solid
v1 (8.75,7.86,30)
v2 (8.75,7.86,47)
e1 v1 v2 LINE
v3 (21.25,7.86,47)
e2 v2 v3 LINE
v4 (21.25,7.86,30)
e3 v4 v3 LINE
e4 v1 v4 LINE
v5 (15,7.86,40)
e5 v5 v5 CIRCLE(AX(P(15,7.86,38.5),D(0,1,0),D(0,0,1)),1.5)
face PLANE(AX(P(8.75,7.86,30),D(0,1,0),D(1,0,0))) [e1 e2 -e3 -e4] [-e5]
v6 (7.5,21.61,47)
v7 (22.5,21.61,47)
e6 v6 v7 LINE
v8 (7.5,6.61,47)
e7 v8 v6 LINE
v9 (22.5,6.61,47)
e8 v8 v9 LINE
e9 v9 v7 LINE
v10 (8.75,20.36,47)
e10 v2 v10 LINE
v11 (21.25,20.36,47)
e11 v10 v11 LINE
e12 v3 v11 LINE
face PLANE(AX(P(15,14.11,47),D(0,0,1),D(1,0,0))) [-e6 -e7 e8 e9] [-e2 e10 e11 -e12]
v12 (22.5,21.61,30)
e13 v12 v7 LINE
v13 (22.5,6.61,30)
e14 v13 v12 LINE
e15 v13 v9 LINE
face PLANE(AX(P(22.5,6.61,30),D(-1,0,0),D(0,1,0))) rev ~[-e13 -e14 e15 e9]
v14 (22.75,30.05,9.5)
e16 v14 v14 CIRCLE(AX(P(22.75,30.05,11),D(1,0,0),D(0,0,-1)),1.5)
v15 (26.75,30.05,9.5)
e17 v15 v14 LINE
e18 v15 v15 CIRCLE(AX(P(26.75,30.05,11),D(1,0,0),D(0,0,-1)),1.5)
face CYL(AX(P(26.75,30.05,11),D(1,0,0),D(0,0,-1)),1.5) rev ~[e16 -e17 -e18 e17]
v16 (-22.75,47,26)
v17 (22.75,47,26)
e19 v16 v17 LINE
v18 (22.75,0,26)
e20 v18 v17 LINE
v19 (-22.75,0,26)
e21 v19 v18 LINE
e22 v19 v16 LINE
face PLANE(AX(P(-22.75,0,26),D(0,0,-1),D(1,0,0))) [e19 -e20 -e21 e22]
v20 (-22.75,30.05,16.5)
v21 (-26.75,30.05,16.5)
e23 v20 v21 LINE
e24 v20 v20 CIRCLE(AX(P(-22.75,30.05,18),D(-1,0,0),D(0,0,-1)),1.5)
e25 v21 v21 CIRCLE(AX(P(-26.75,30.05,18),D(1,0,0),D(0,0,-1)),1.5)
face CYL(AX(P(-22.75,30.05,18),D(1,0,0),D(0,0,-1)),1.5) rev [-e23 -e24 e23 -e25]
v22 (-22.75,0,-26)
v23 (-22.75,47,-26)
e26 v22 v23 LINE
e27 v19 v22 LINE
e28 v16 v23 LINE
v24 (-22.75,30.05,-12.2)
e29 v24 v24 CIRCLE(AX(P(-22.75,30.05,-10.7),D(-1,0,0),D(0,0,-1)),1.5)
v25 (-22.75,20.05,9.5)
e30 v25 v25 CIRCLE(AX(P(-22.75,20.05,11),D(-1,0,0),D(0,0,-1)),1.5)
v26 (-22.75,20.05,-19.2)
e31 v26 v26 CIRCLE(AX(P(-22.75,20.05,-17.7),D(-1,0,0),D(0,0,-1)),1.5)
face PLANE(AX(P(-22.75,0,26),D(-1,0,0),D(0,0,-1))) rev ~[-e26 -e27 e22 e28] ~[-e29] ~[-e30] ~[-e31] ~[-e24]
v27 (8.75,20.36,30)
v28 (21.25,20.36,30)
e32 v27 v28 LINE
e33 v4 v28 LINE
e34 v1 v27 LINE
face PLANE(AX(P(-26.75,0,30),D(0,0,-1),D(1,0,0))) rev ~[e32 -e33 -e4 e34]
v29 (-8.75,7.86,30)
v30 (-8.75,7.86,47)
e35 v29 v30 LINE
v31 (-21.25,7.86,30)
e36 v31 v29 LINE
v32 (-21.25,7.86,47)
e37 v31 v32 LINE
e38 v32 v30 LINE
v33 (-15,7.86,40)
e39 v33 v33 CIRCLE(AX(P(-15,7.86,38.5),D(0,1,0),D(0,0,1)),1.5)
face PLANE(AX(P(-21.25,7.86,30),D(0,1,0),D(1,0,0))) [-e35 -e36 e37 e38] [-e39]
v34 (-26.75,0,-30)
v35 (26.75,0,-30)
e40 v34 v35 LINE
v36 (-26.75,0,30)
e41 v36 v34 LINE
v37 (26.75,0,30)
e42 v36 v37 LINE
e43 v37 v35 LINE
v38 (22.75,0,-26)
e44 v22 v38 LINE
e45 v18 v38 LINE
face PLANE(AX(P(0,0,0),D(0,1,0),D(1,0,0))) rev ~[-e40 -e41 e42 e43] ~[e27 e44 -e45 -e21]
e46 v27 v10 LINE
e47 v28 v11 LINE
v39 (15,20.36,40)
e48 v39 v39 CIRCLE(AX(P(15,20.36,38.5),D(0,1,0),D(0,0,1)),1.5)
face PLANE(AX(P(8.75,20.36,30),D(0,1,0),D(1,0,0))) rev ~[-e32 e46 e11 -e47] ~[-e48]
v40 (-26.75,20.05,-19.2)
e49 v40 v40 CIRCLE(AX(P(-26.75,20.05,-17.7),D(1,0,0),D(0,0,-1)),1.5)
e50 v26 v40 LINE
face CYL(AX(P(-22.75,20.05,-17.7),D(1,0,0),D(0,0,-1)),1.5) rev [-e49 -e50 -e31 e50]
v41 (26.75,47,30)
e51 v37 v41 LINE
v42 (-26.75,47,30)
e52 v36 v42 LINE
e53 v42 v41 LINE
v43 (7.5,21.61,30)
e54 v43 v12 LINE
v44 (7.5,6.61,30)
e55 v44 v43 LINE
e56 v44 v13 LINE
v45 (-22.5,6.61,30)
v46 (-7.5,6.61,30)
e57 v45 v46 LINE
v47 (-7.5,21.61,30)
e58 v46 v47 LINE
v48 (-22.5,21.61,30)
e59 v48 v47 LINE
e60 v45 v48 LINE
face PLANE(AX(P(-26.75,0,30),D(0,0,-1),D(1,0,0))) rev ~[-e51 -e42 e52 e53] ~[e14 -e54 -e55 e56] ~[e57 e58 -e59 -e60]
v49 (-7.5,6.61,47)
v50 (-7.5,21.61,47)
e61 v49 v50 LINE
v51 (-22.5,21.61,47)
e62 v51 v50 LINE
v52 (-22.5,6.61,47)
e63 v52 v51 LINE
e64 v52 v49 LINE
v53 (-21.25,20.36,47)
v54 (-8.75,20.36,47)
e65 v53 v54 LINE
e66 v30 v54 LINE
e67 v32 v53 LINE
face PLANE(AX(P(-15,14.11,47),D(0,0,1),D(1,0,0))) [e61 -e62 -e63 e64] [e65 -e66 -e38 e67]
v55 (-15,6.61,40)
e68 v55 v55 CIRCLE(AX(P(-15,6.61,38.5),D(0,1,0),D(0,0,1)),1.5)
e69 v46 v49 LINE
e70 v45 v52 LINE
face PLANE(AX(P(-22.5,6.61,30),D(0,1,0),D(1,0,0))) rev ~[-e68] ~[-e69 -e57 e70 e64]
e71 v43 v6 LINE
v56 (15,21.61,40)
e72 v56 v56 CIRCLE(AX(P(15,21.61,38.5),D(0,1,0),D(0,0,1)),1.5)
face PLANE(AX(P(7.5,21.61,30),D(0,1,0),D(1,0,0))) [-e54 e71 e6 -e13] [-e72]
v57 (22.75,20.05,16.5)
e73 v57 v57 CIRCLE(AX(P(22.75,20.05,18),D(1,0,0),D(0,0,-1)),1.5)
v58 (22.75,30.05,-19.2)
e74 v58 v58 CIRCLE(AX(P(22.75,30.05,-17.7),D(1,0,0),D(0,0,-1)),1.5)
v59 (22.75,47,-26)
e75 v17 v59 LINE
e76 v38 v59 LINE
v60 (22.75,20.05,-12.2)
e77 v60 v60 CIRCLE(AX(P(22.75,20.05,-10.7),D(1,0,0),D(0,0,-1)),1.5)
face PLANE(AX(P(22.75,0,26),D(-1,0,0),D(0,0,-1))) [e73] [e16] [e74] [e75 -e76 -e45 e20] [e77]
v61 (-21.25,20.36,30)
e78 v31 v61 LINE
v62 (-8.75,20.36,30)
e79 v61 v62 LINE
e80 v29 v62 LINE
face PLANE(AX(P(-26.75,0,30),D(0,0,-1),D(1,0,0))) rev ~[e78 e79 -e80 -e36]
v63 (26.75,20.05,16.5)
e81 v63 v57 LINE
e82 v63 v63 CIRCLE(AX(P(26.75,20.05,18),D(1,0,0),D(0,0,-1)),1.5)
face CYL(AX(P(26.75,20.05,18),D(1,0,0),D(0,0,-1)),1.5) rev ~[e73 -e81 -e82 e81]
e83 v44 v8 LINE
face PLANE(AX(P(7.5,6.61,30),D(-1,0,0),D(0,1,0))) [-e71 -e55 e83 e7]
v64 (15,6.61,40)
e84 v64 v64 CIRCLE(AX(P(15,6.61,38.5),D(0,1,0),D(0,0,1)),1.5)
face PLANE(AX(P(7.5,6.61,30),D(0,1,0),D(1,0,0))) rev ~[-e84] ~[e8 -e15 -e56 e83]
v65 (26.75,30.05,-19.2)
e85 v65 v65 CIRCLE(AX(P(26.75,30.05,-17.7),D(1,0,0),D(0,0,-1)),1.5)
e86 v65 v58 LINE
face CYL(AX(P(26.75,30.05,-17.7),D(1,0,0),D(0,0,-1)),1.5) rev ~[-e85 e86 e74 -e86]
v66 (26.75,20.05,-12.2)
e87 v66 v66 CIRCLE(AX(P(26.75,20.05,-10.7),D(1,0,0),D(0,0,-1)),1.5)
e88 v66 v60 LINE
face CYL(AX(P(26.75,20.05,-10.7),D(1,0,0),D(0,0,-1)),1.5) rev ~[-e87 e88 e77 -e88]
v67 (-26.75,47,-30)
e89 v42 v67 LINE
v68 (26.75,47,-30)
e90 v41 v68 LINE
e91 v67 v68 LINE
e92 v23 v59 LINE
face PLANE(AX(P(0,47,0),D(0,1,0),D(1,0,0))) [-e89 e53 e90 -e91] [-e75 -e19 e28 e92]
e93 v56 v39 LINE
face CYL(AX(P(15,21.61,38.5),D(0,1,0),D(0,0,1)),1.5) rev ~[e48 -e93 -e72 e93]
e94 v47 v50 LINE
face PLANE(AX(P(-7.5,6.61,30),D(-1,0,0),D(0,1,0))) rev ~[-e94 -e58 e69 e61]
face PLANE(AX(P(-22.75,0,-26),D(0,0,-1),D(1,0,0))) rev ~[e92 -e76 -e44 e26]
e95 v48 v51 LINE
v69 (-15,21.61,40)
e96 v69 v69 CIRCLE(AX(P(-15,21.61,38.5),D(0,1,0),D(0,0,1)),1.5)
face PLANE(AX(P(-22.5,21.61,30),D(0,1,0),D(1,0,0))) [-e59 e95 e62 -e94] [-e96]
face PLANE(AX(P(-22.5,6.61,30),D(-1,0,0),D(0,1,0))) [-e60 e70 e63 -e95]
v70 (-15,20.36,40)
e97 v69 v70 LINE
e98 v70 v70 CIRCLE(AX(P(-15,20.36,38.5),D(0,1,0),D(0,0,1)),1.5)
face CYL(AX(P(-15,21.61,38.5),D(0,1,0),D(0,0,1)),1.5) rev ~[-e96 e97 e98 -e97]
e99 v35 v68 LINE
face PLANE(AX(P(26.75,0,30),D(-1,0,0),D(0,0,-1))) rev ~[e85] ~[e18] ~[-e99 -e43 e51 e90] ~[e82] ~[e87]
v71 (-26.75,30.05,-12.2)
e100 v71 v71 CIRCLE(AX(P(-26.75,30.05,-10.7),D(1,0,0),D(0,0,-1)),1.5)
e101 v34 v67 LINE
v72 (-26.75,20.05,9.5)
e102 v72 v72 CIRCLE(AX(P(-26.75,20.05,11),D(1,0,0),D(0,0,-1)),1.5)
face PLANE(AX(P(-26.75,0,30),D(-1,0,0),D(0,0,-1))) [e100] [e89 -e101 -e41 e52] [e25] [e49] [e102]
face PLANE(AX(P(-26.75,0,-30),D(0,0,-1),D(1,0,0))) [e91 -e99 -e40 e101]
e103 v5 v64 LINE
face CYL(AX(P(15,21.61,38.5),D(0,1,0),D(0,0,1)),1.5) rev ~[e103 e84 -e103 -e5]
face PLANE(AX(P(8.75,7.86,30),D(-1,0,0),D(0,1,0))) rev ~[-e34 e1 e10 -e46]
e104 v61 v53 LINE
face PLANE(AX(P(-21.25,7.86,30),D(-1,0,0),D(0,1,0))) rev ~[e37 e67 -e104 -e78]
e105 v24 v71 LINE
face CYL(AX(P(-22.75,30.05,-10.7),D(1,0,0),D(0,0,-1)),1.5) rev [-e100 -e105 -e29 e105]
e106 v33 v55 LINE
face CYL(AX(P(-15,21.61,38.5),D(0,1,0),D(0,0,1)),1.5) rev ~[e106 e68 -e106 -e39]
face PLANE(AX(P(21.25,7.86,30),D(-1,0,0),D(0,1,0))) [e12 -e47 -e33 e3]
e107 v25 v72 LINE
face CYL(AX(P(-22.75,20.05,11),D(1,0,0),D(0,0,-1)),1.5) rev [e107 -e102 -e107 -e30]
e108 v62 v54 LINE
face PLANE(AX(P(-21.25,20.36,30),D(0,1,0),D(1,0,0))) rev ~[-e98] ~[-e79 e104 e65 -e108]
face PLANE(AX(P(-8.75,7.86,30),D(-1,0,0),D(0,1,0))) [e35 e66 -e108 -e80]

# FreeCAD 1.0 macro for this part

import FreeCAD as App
import Part
import Sketcher
from FreeCAD import Vector

doc = App.newDocument("Part")
body = doc.addObject("PartDesign::Body", "Body")

sketch1 = body.newObject("Sketcher::SketchObject", "Sketch")
sketch1.AttachmentSupport = (doc.getObject("XZ_Plane"), [""])
sketch1.MapMode = "FlatFace"
sketch1.addGeometry(Part.LineSegment(Vector(-26.75, -30, 0), Vector(-26.75, 30, 0)), False)
sketch1.addGeometry(Part.LineSegment(Vector(-26.75, 30, 0), Vector(26.75, 30, 0)), False)
sketch1.addGeometry(Part.LineSegment(Vector(26.75, 30, 0), Vector(26.75, -30, 0)), False)
sketch1.addGeometry(Part.LineSegment(Vector(26.75, -30, 0), Vector(-26.75, -30, 0)), False)
sketch1.addGeometry(Part.LineSegment(Vector(22.75, 26, 0), Vector(-22.75, 26, 0)), False)
sketch1.addGeometry(Part.LineSegment(Vector(-22.75, 26, 0), Vector(-22.75, -26, 0)), False)
sketch1.addGeometry(Part.LineSegment(Vector(-22.75, -26, 0), Vector(22.75, -26, 0)), False)
sketch1.addGeometry(Part.LineSegment(Vector(22.75, -26, 0), Vector(22.75, 26, 0)), False)
sketch1.addConstraint(Sketcher.Constraint("Coincident", 0, 2, 1, 1))
sketch1.addConstraint(Sketcher.Constraint("Coincident", 1, 2, 2, 1))
sketch1.addConstraint(Sketcher.Constraint("Coincident", 2, 2, 3, 1))
sketch1.addConstraint(Sketcher.Constraint("Coincident", 3, 2, 0, 1))
sketch1.addConstraint(Sketcher.Constraint("Coincident", 4, 2, 5, 1))
sketch1.addConstraint(Sketcher.Constraint("Coincident", 5, 2, 6, 1))
sketch1.addConstraint(Sketcher.Constraint("Coincident", 6, 2, 7, 1))
sketch1.addConstraint(Sketcher.Constraint("Coincident", 7, 2, 4, 1))
sketch1.addConstraint(Sketcher.Constraint("Vertical", 0))
sketch1.addConstraint(Sketcher.Constraint("Horizontal", 1))
sketch1.addConstraint(Sketcher.Constraint("Vertical", 2))
sketch1.addConstraint(Sketcher.Constraint("Horizontal", 3))
sketch1.addConstraint(Sketcher.Constraint("Horizontal", 4))
sketch1.addConstraint(Sketcher.Constraint("Vertical", 5))
sketch1.addConstraint(Sketcher.Constraint("Horizontal", 6))
sketch1.addConstraint(Sketcher.Constraint("Vertical", 7))
sketch1.addConstraint(Sketcher.Constraint("Symmetric", 0, 2, 2, 2, -1, 1))
sketch1.addConstraint(Sketcher.Constraint("Symmetric", 4, 2, 6, 2, -1, 1))
sketch1.addConstraint(Sketcher.Constraint("DistanceY", 0, 1, 0, 2, 60.0))
sketch1.addConstraint(Sketcher.Constraint("DistanceY", 5, 2, 5, 1, 52.0))
sketch1.addConstraint(Sketcher.Constraint("DistanceX", 1, 1, 1, 2, 53.5))
sketch1.addConstraint(Sketcher.Constraint("DistanceX", 4, 2, 4, 1, 45.5))
pad1 = body.newObject("PartDesign::Pad", "Pad")
pad1.Profile = sketch1
pad1.Length = 47
pad1.Reversed = True

sketch2 = body.newObject("Sketcher::SketchObject", "Sketch001")
sketch2.AttachmentSupport = (doc.getObject("YZ_Plane"), [""])
sketch2.MapMode = "FlatFace"
sketch2.AttachmentOffset = App.Placement(Vector(0, 0, -22.75), App.Rotation())
sketch2.addGeometry(Part.Circle(Vector(30.05, 18, 0), Vector(0, 0, 1), 1.5), False)
sketch2.addGeometry(Part.Circle(Vector(20.05, 11, 0), Vector(0, 0, 1), 1.5), False)
sketch2.addConstraint(Sketcher.Constraint("Equal", 0, 1))
sketch2.addConstraint(Sketcher.Constraint("Diameter", 0, 3.0))
sketch2.addConstraint(Sketcher.Constraint("DistanceY", -1, 1, 0, 3, 18.0))
sketch2.addConstraint(Sketcher.Constraint("DistanceY", -1, 1, 1, 3, 11.0))
sketch2.addConstraint(Sketcher.Constraint("DistanceX", 1, 3, 0, 3, 10.0))
sketch2.addConstraint(Sketcher.Constraint("DistanceX", -1, 1, 0, 3, 30.05))
pocket1 = body.newObject("PartDesign::Pocket", "Pocket")
pocket1.Profile = sketch2
pocket1.Length = 82.273864
doc.recompute()

linearpattern = body.newObject("PartDesign::LinearPattern", "LinearPattern")
linearpattern.Originals = [pocket1]
linearpattern.Direction = (doc.getObject("Z_Axis"), [""])
linearpattern.Mode = "offset"
linearpattern.Offset = 28.7
linearpattern.Occurrences = 2
linearpattern.Reversed = True
body.Tip = linearpattern

sketch3 = body.newObject("Sketcher::SketchObject", "Sketch002")
sketch3.AttachmentSupport = (doc.getObject("YZ_Plane"), [""])
sketch3.MapMode = "FlatFace"
sketch3.AttachmentOffset = App.Placement(Vector(0, 0, 26.75), App.Rotation())
sketch3.addGeometry(Part.Circle(Vector(30.05, 11, 0), Vector(0, 0, 1), 1.5), False)
sketch3.addGeometry(Part.Circle(Vector(20.05, 18, 0), Vector(0, 0, 1), 1.5), False)
sketch3.addConstraint(Sketcher.Constraint("Equal", 0, 1))
sketch3.addConstraint(Sketcher.Constraint("Diameter", 0, 3.0))
sketch3.addConstraint(Sketcher.Constraint("DistanceY", -1, 1, 0, 3, 11.0))
sketch3.addConstraint(Sketcher.Constraint("DistanceY", -1, 1, 1, 3, 18.0))
sketch3.addConstraint(Sketcher.Constraint("DistanceX", 1, 3, 0, 3, 10.0))
sketch3.addConstraint(Sketcher.Constraint("DistanceX", -1, 1, 0, 3, 30.05))
pocket2 = body.newObject("PartDesign::Pocket", "Pocket001")
pocket2.Profile = sketch3
pocket2.Length = 4
doc.recompute()

linearpattern2 = body.newObject("PartDesign::LinearPattern", "LinearPattern001")
linearpattern2.Originals = [pocket2]
linearpattern2.Direction = (doc.getObject("Z_Axis"), [""])
linearpattern2.Mode = "offset"
linearpattern2.Offset = 28.7
linearpattern2.Occurrences = 2
linearpattern2.Reversed = True
body.Tip = linearpattern2

sketch4 = body.newObject("Sketcher::SketchObject", "Sketch003")
sketch4.AttachmentSupport = (doc.getObject("XY_Plane"), [""])
sketch4.MapMode = "FlatFace"
sketch4.AttachmentOffset = App.Placement(Vector(0, 0, 30), App.Rotation())
sketch4.addGeometry(Part.LineSegment(Vector(-22.5, 21.61, 0), Vector(-22.5, 6.61, 0)), False)
sketch4.addGeometry(Part.LineSegment(Vector(-22.5, 6.61, 0), Vector(-7.5, 6.61, 0)), False)
sketch4.addGeometry(Part.LineSegment(Vector(-7.5, 6.61, 0), Vector(-7.5, 21.61, 0)), False)
sketch4.addGeometry(Part.LineSegment(Vector(-7.5, 21.61, 0), Vector(-22.5, 21.61, 0)), False)
sketch4.addGeometry(Part.LineSegment(Vector(-8.75, 7.86, 0), Vector(-21.25, 7.86, 0)), False)
sketch4.addGeometry(Part.LineSegment(Vector(-21.25, 7.86, 0), Vector(-21.25, 20.36, 0)), False)
sketch4.addGeometry(Part.LineSegment(Vector(-21.25, 20.36, 0), Vector(-8.75, 20.36, 0)), False)
sketch4.addGeometry(Part.LineSegment(Vector(-8.75, 20.36, 0), Vector(-8.75, 7.86, 0)), False)
sketch4.addGeometry(Part.LineSegment(Vector(7.5, 21.61, 0), Vector(7.5, 6.61, 0)), False)
sketch4.addGeometry(Part.LineSegment(Vector(7.5, 6.61, 0), Vector(22.5, 6.61, 0)), False)
sketch4.addGeometry(Part.LineSegment(Vector(22.5, 6.61, 0), Vector(22.5, 21.61, 0)), False)
sketch4.addGeometry(Part.LineSegment(Vector(22.5, 21.61, 0), Vector(7.5, 21.61, 0)), False)
sketch4.addGeometry(Part.LineSegment(Vector(21.25, 7.86, 0), Vector(8.75, 7.86, 0)), False)
sketch4.addGeometry(Part.LineSegment(Vector(8.75, 7.86, 0), Vector(8.75, 20.36, 0)), False)
sketch4.addGeometry(Part.LineSegment(Vector(8.75, 20.36, 0), Vector(21.25, 20.36, 0)), False)
sketch4.addGeometry(Part.LineSegment(Vector(21.25, 20.36, 0), Vector(21.25, 7.86, 0)), False)
sketch4.addConstraint(Sketcher.Constraint("Coincident", 0, 2, 1, 1))
sketch4.addConstraint(Sketcher.Constraint("Coincident", 1, 2, 2, 1))
sketch4.addConstraint(Sketcher.Constraint("Coincident", 2, 2, 3, 1))
sketch4.addConstraint(Sketcher.Constraint("Coincident", 3, 2, 0, 1))
sketch4.addConstraint(Sketcher.Constraint("Coincident", 4, 2, 5, 1))
sketch4.addConstraint(Sketcher.Constraint("Coincident", 5, 2, 6, 1))
sketch4.addConstraint(Sketcher.Constraint("Coincident", 6, 2, 7, 1))
sketch4.addConstraint(Sketcher.Constraint("Coincident", 7, 2, 4, 1))
sketch4.addConstraint(Sketcher.Constraint("Coincident", 8, 2, 9, 1))
sketch4.addConstraint(Sketcher.Constraint("Coincident", 9, 2, 10, 1))
sketch4.addConstraint(Sketcher.Constraint("Coincident", 10, 2, 11, 1))
sketch4.addConstraint(Sketcher.Constraint("Coincident", 11, 2, 8, 1))
sketch4.addConstraint(Sketcher.Constraint("Coincident", 12, 2, 13, 1))
sketch4.addConstraint(Sketcher.Constraint("Coincident", 13, 2, 14, 1))
sketch4.addConstraint(Sketcher.Constraint("Coincident", 14, 2, 15, 1))
sketch4.addConstraint(Sketcher.Constraint("Coincident", 15, 2, 12, 1))
sketch4.addConstraint(Sketcher.Constraint("Vertical", 0))
sketch4.addConstraint(Sketcher.Constraint("Horizontal", 1))
sketch4.addConstraint(Sketcher.Constraint("Vertical", 2))
sketch4.addConstraint(Sketcher.Constraint("Horizontal", 3))
sketch4.addConstraint(Sketcher.Constraint("Horizontal", 4))
sketch4.addConstraint(Sketcher.Constraint("Vertical", 5))
sketch4.addConstraint(Sketcher.Constraint("Horizontal", 6))
sketch4.addConstraint(Sketcher.Constraint("Vertical", 7))
sketch4.addConstraint(Sketcher.Constraint("Vertical", 8))
sketch4.addConstraint(Sketcher.Constraint("Horizontal", 9))
sketch4.addConstraint(Sketcher.Constraint("Vertical", 10))
sketch4.addConstraint(Sketcher.Constraint("Horizontal", 11))
sketch4.addConstraint(Sketcher.Constraint("Horizontal", 12))
sketch4.addConstraint(Sketcher.Constraint("Vertical", 13))
sketch4.addConstraint(Sketcher.Constraint("Horizontal", 14))
sketch4.addConstraint(Sketcher.Constraint("Vertical", 15))
sketch4.addConstraint(Sketcher.Constraint("Symmetric", 1, 2, 8, 2, -2))
sketch4.addConstraint(Sketcher.Constraint("Symmetric", 3, 2, 10, 2, -2))
sketch4.addConstraint(Sketcher.Constraint("Symmetric", 7, 2, 12, 2, -2))
sketch4.addConstraint(Sketcher.Constraint("Symmetric", 5, 2, 14, 2, -2))
sketch4.addConstraint(Sketcher.Constraint("Equal", 11, 0))
sketch4.addConstraint(Sketcher.Constraint("Equal", 14, 5))
sketch4.addConstraint(Sketcher.Constraint("DistanceX", 1, 1, 1, 2, 15.0))
sketch4.addConstraint(Sketcher.Constraint("DistanceX", 4, 2, 4, 1, 12.5))
sketch4.addConstraint(Sketcher.Constraint("DistanceX", 1, 2, 8, 2, 15.0))
sketch4.addConstraint(Sketcher.Constraint("DistanceX", 7, 2, 12, 2, 17.5))
sketch4.addConstraint(Sketcher.Constraint("DistanceY", -1, 1, 0, 2, 6.61))
sketch4.addConstraint(Sketcher.Constraint("DistanceY", -1, 1, 4, 2, 7.86))
pad2 = body.newObject("PartDesign::Pad", "Pad001")
pad2.Profile = sketch4
pad2.Length = 17

sketch5 = body.newObject("Sketcher::SketchObject", "Sketch004")
sketch5.AttachmentSupport = (doc.getObject("XZ_Plane"), [""])
sketch5.MapMode = "FlatFace"
sketch5.AttachmentOffset = App.Placement(Vector(0, 0, -21.61), App.Rotation())
sketch5.addGeometry(Part.Circle(Vector(-15, 38.5, 0), Vector(0, 0, 1), 1.5), False)
sketch5.addGeometry(Part.Circle(Vector(15, 38.5, 0), Vector(0, 0, 1), 1.5), False)
sketch5.addConstraint(Sketcher.Constraint("Equal", 0, 1))
sketch5.addConstraint(Sketcher.Constraint("Symmetric", 0, 3, 1, 3, -2))
sketch5.addConstraint(Sketcher.Constraint("Diameter", 0, 3.0))
sketch5.addConstraint(Sketcher.Constraint("DistanceX", 0, 3, -1, 1, 15.0))
sketch5.addConstraint(Sketcher.Constraint("DistanceY", -1, 1, 0, 3, 38.5))
pocket3 = body.newObject("PartDesign::Pocket", "Pocket002")
pocket3.Profile = sketch5
pocket3.Type = "ThroughAll"
pocket3.Reversed = True

doc.recompute()
